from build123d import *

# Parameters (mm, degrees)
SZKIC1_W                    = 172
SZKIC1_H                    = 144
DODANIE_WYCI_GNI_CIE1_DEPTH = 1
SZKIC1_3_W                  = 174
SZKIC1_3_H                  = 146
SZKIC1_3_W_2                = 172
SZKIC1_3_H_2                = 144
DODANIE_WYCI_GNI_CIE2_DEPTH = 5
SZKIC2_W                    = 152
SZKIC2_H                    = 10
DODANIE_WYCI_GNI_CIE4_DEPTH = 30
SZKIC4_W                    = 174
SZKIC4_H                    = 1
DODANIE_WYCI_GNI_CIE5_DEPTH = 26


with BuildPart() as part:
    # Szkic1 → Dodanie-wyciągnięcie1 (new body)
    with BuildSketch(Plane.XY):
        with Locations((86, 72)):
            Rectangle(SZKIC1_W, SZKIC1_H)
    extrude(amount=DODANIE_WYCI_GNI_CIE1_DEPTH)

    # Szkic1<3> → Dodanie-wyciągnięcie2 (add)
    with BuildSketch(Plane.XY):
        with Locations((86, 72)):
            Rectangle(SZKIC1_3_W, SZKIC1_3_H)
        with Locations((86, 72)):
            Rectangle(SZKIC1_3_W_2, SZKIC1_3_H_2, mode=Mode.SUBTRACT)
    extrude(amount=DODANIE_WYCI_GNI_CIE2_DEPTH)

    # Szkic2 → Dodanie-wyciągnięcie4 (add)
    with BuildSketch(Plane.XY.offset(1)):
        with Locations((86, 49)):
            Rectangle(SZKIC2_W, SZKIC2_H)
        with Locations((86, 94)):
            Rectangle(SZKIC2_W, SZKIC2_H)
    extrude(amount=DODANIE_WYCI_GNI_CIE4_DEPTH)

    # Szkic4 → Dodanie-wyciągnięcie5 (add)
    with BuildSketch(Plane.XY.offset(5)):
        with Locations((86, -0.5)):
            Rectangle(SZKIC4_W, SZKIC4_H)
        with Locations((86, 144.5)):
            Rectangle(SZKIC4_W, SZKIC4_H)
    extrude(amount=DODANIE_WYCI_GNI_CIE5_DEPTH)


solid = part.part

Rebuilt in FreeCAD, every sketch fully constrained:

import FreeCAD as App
import Part
import Sketcher

V = App.Vector


def add_polygon(sketch, points):
    """Adds a closed chain of lines whose ends are joined by coincident constraints."""
    first, n = sketch.GeometryCount, len(points)
    for a, b in zip(points, points[1:] + points[:1]):
        sketch.addGeometry(Part.LineSegment(App.Vector(*a, 0), App.Vector(*b, 0)), False)
    for i in range(n):
        sketch.addConstraint(Sketcher.Constraint("Coincident", first + i, 2, first + (i + 1) % n, 1))

doc = App.newDocument("Part")
body = doc.addObject("PartDesign::Body", "Body")

# Sketch on XY plane
sketch1 = body.newObject("Sketcher::SketchObject", "Sketch")
sketch1.AttachmentSupport = (doc.getObject("XY_Plane"), [""])
sketch1.MapMode = "FlatFace"
add_polygon(sketch1, [(0, 144), (0, 0), (172, 0), (172, 144)])  # lines 0-3
sketch1.addConstraint([
    Sketcher.Constraint("Vertical", 0),
    Sketcher.Constraint("Horizontal", 1),
    Sketcher.Constraint("Vertical", 2),
    Sketcher.Constraint("Horizontal", 3),
    Sketcher.Constraint("Coincident", 0, 2, -1, 1),
    Sketcher.Constraint("DistanceX", 1, 1, 1, 2, 172.0),
    Sketcher.Constraint("DistanceY", 0, 2, 0, 1, 144.0),
])
pad1 = body.newObject("PartDesign::Pad", "Pad")
pad1.Profile = sketch1
pad1.Length = 1

# Sketch on XY plane
sketch2 = body.newObject("Sketcher::SketchObject", "Sketch001")
sketch2.AttachmentSupport = (doc.getObject("XY_Plane"), [""])
sketch2.MapMode = "FlatFace"
add_polygon(sketch2, [(-1, 145), (-1, -1), (173, -1), (173, 145)])  # lines 0-3
add_polygon(sketch2, [(172, 0), (0, 0), (0, 144), (172, 144)])  # lines 4-7
sketch2.addConstraint([
    Sketcher.Constraint("Vertical", 0),
    Sketcher.Constraint("Horizontal", 1),
    Sketcher.Constraint("Vertical", 2),
    Sketcher.Constraint("Horizontal", 3),
    Sketcher.Constraint("Horizontal", 4),
    Sketcher.Constraint("Vertical", 5),
    Sketcher.Constraint("Horizontal", 6),
    Sketcher.Constraint("Vertical", 7),
    Sketcher.Constraint("Coincident", 4, 2, -1, 1),
    Sketcher.Constraint("DistanceX", 1, 1, 1, 2, 174.0),
    Sketcher.Constraint("DistanceX", 4, 2, 4, 1, 172.0),
    Sketcher.Constraint("DistanceY", 0, 2, 0, 1, 146.0),
    Sketcher.Constraint("DistanceY", 5, 1, 5, 2, 144.0),
    Sketcher.Constraint("DistanceX", 0, 2, -1, 1, 1.0),
    Sketcher.Constraint("DistanceY", 0, 2, -1, 1, 1.0),
])
pad2 = body.newObject("PartDesign::Pad", "Pad001")
pad2.Profile = sketch2
pad2.Length = 5

# Sketch on XY plane
sketch3 = body.newObject("Sketcher::SketchObject", "Sketch002")
sketch3.AttachmentSupport = (doc.getObject("XY_Plane"), [""])
sketch3.MapMode = "FlatFace"
sketch3.AttachmentOffset = App.Placement(V(0, 0, 1), App.Rotation())
add_polygon(sketch3, [(10, 54), (10, 44), (162, 44), (162, 54)])  # lines 0-3
add_polygon(sketch3, [(10, 99), (10, 89), (162, 89), (162, 99)])  # lines 4-7
sketch3.addConstraint([
    Sketcher.Constraint("Vertical", 0),
    Sketcher.Constraint("Horizontal", 1),
    Sketcher.Constraint("Vertical", 2),
    Sketcher.Constraint("Horizontal", 3),
    Sketcher.Constraint("Vertical", 4),
    Sketcher.Constraint("Horizontal", 5),
    Sketcher.Constraint("Vertical", 6),
    Sketcher.Constraint("Horizontal", 7),
    Sketcher.Constraint("Vertical", 3, 2, 4, 2),
    Sketcher.Constraint("Vertical", 2, 2, 5, 2),
    Sketcher.Constraint("Equal", 2, 4),
    Sketcher.Constraint("DistanceX", 1, 1, 1, 2, 152.0),
    Sketcher.Constraint("DistanceY", 0, 2, 0, 1, 10.0),
    Sketcher.Constraint("DistanceX", -1, 1, 0, 2, 10.0),
    Sketcher.Constraint("DistanceY", -1, 1, 0, 2, 44.0),
    Sketcher.Constraint("DistanceY", -1, 1, 4, 2, 89.0),
])
pad3 = body.newObject("PartDesign::Pad", "Pad002")
pad3.Profile = sketch3
pad3.Length = 30

# Sketch on XY plane
sketch4 = body.newObject("Sketcher::SketchObject", "Sketch003")
sketch4.AttachmentSupport = (doc.getObject("XY_Plane"), [""])
sketch4.MapMode = "FlatFace"
sketch4.AttachmentOffset = App.Placement(V(0, 0, 5), App.Rotation())
add_polygon(sketch4, [(-1, 0), (-1, -1), (173, -1), (173, 0)])  # lines 0-3
add_polygon(sketch4, [(-1, 145), (-1, 144), (173, 144), (173, 145)])  # lines 4-7
sketch4.addConstraint([
    Sketcher.Constraint("Vertical", 0),
    Sketcher.Constraint("Horizontal", 1),
    Sketcher.Constraint("Vertical", 2),
    Sketcher.Constraint("Horizontal", 3),
    Sketcher.Constraint("Vertical", 4),
    Sketcher.Constraint("Horizontal", 5),
    Sketcher.Constraint("Vertical", 6),
    Sketcher.Constraint("Horizontal", 7),
    Sketcher.Constraint("PointOnObject", 2, 2, -1),
    Sketcher.Constraint("Vertical", 3, 2, 4, 2),
    Sketcher.Constraint("Vertical", 2, 2, 5, 2),
    Sketcher.Constraint("Equal", 2, 4),
    Sketcher.Constraint("DistanceX", 1, 1, 1, 2, 174.0),
    Sketcher.Constraint("DistanceY", 0, 2, 0, 1, 1.0),
    Sketcher.Constraint("DistanceX", 0, 2, -1, 1, 1.0),
    Sketcher.Constraint("DistanceY", -1, 1, 4, 2, 144.0),
])
pad4 = body.newObject("PartDesign::Pad", "Pad003")
pad4.Profile = sketch4
pad4.Length = 26

doc.recompute()
